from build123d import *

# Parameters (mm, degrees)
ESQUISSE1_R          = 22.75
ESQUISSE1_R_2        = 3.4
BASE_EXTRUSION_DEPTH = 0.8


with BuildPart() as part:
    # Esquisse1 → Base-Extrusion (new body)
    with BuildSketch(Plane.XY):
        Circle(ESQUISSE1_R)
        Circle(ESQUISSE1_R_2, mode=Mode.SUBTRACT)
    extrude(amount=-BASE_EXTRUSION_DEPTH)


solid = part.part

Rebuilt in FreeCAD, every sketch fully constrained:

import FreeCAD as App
import Part
import Sketcher
from FreeCAD import Vector

doc = App.newDocument("Part")
body = doc.addObject("PartDesign::Body", "Body")

# Sketch on XY plane
sketch1 = body.newObject("Sketcher::SketchObject", "Sketch")
sketch1.AttachmentSupport = (doc.getObject("XY_Plane"), [""])
sketch1.MapMode = "FlatFace"
sketch1.addGeometry([
    Part.Circle(Vector(0, 0, 0), Vector(0, 0, 1), 22.8),
    Part.Circle(Vector(0, 0, 0), Vector(0, 0, 1), 3.4),
], False)
sketch1.addConstraint([
    Sketcher.Constraint("Coincident", 0, 3, -1, 1),
    Sketcher.Constraint("Coincident", 1, 3, -1, 1),
    Sketcher.Constraint("Diameter", 0, 45.5),
    Sketcher.Constraint("Diameter", 1, 6.8),
])
pad1 = body.newObject("PartDesign::Pad", "Pad")
pad1.Profile = sketch1
pad1.Length = 0.8
pad1.Reversed = True

doc.recompute()
